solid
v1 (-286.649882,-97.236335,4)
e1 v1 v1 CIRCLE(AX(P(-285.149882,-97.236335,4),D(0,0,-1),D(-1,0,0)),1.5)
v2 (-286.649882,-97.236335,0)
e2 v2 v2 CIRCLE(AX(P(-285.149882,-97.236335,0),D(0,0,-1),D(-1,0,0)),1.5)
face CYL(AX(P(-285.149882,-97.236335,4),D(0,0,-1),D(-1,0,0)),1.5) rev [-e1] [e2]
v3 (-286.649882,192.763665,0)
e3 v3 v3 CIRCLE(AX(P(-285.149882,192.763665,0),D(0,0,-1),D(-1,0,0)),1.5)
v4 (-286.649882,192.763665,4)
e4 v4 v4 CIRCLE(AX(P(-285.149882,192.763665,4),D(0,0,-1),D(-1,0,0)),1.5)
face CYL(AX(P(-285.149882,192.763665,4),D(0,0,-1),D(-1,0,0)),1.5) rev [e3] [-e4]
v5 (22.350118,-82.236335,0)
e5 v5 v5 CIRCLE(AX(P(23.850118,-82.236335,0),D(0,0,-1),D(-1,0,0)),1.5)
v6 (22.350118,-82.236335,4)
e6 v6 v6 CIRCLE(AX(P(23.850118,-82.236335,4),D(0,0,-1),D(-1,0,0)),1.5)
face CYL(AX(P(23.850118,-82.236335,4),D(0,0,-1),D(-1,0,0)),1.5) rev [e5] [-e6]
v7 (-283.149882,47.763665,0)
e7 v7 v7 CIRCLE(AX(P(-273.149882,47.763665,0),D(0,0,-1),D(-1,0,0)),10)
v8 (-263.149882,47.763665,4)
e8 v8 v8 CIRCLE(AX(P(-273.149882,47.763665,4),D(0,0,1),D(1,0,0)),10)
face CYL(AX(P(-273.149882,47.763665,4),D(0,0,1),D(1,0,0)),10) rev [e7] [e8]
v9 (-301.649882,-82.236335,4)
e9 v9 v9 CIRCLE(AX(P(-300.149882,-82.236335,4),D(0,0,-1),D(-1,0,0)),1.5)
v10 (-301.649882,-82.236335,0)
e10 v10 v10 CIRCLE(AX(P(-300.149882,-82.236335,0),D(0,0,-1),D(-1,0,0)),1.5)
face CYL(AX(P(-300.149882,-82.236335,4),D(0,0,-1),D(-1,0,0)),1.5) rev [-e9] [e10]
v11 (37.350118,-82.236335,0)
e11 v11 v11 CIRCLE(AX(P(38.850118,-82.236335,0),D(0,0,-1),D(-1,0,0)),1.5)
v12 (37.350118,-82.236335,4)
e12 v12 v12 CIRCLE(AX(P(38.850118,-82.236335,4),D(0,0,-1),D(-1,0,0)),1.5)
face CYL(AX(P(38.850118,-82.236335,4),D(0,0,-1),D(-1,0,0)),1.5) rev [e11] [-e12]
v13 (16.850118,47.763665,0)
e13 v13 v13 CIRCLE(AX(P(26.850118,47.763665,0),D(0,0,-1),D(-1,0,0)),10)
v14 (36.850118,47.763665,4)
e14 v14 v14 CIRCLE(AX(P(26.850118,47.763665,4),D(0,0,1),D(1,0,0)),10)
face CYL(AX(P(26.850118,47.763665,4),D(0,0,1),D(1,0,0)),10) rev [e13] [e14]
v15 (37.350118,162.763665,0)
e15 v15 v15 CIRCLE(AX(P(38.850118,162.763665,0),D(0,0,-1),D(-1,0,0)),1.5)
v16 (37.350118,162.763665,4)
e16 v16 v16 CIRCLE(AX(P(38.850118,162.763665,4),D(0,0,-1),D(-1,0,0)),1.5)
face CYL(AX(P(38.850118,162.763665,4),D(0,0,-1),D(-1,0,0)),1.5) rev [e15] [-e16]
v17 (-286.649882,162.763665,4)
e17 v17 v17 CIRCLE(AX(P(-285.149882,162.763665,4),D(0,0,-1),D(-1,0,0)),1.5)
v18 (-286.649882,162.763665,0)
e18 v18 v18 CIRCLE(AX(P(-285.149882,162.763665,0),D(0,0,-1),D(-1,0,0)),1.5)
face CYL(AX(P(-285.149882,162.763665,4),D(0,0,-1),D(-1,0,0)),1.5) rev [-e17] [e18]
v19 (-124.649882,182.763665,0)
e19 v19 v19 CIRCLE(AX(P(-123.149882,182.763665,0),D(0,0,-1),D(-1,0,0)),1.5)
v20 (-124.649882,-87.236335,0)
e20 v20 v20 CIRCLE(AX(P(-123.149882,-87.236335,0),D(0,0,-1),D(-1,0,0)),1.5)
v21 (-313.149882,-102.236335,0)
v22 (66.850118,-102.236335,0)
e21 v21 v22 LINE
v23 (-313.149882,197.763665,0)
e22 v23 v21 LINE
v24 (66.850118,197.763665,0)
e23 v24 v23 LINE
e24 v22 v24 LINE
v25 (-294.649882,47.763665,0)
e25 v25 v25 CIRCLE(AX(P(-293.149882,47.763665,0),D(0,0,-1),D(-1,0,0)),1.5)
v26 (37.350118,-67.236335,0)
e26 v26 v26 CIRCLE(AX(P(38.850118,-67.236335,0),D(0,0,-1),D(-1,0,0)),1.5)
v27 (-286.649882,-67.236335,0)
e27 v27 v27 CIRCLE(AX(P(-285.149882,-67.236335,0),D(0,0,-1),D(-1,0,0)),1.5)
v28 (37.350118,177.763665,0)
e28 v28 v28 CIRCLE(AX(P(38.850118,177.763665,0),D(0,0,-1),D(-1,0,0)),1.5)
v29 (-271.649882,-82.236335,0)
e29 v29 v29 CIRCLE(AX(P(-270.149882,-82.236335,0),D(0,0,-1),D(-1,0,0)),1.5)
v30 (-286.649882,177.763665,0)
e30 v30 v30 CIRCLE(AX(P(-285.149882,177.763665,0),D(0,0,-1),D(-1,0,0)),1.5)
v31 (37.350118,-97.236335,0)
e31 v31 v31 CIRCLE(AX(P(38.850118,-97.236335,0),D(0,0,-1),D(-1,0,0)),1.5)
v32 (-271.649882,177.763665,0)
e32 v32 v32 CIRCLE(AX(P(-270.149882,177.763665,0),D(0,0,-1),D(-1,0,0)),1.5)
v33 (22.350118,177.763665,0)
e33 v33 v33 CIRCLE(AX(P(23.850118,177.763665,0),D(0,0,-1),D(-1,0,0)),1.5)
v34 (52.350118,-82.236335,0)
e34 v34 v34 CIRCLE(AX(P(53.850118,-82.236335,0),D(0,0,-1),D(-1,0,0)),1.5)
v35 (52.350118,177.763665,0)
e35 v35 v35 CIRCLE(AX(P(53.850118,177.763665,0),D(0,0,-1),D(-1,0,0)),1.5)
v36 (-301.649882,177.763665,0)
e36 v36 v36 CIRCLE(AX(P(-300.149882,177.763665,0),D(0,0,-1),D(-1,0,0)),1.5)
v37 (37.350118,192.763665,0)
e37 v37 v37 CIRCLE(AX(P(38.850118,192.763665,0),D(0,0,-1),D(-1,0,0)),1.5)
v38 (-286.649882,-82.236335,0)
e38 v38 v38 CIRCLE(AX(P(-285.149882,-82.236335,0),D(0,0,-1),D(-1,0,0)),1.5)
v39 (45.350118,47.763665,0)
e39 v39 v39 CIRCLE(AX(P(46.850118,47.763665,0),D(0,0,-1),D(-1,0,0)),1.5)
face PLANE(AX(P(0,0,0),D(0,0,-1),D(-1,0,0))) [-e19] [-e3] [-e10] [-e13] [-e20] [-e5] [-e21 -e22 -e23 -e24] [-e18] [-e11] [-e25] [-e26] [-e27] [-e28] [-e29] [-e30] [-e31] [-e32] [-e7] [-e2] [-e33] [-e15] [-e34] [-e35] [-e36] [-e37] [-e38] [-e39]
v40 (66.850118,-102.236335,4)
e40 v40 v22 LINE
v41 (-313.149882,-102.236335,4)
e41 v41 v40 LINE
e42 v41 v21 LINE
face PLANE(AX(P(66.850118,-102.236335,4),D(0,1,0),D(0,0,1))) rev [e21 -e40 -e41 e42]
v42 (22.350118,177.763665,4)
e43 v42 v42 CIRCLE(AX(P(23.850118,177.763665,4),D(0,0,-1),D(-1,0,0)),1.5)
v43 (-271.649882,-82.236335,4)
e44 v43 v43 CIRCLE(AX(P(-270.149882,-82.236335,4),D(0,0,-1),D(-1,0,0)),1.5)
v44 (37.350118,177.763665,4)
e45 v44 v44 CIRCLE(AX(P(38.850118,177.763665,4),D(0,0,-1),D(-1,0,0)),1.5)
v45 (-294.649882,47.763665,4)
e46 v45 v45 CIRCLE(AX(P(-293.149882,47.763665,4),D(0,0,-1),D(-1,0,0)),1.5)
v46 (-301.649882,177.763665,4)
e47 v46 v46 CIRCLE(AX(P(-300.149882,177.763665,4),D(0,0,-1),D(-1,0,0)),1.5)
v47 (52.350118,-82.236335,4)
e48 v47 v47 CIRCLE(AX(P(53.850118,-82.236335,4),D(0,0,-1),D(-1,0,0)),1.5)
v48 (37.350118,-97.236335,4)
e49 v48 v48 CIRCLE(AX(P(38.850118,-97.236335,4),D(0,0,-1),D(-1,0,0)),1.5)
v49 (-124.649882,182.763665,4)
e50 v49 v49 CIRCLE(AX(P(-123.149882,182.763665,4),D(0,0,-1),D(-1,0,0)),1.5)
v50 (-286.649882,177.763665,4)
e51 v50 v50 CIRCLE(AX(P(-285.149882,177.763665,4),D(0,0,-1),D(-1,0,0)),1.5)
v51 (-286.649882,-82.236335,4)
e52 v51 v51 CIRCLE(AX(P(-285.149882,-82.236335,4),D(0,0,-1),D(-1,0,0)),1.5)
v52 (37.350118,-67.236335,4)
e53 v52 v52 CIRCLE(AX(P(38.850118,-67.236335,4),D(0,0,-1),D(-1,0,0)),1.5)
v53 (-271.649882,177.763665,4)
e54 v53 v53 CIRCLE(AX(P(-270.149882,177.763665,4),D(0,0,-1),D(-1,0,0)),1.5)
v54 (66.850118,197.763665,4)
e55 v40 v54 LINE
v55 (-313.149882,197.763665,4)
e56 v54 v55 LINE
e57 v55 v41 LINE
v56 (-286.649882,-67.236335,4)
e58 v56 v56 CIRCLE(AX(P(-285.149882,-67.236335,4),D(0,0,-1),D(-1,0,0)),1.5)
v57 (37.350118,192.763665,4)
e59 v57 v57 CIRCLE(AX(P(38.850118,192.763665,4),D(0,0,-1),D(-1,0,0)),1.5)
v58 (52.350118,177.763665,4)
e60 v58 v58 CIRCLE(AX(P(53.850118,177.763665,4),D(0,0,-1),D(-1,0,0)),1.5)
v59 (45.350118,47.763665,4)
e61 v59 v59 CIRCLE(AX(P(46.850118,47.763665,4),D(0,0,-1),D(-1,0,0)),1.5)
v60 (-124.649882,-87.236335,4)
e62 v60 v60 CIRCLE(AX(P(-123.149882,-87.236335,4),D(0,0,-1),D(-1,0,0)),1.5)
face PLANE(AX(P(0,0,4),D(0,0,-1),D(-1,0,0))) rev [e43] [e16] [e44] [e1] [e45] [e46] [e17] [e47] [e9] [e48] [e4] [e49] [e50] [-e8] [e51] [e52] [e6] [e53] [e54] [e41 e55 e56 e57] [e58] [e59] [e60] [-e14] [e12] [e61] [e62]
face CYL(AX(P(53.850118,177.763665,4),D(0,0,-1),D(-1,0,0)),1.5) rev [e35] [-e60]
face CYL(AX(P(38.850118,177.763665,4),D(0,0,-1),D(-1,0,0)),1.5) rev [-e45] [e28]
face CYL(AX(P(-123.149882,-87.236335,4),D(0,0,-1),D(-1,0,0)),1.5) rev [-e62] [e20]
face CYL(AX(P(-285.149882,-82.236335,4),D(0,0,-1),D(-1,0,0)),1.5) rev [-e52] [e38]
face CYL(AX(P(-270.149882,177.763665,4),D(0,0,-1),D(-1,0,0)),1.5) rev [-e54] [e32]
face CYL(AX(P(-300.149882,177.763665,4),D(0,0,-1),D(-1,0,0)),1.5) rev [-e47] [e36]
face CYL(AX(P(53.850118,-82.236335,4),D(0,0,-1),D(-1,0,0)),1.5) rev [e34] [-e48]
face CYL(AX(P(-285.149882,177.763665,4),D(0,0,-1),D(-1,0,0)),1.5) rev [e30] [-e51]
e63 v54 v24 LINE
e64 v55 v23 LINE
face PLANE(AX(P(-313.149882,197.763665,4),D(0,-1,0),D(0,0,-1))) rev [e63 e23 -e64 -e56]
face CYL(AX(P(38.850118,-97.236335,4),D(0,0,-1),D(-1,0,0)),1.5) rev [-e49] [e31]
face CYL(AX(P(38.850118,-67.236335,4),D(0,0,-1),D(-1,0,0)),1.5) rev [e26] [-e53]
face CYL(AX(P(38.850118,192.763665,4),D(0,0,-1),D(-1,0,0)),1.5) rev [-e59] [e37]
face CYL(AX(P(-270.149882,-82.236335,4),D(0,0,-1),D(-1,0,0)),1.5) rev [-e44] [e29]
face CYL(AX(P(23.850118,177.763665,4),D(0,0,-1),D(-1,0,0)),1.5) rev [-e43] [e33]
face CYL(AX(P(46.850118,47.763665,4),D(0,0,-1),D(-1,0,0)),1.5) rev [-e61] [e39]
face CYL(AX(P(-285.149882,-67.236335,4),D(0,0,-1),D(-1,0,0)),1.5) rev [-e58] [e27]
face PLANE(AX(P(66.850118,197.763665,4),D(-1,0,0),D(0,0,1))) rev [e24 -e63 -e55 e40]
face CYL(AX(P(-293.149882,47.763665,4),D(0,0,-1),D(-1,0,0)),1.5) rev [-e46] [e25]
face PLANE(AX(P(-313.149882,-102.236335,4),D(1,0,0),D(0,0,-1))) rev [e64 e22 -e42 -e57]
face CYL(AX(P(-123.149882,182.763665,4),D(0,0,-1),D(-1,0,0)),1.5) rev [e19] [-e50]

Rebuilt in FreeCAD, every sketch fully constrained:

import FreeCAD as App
import Part
import Sketcher

V = App.Vector
Q = App.Units.Quantity


def add_polygon(sketch, points):
    """Adds a closed chain of lines whose ends are joined by coincident constraints."""
    first, n = sketch.GeometryCount, len(points)
    for a, b in zip(points, points[1:] + points[:1]):
        sketch.addGeometry(Part.LineSegment(App.Vector(*a, 0), App.Vector(*b, 0)), False)
    for i in range(n):
        sketch.addConstraint(Sketcher.Constraint("Coincident", first + i, 2, first + (i + 1) % n, 1))

doc = App.newDocument("Part")
body = doc.addObject("PartDesign::Body", "Body")

# Sketch on XY plane
sketch1 = doc.addObject("Sketcher::SketchObject", "Sketch")
body.addObject(sketch1)
sketch1.AttachmentSupport = (doc.XY_Plane, [""])
sketch1.MapMode = "FlatFace"
add_polygon(sketch1, [(-313, 198), (-313, -102), (67, -102), (67, 198)])  # lines 0-3
sketch1.addConstraint([
    Sketcher.Constraint("Vertical", 0),
    Sketcher.Constraint("Horizontal", 1),
    Sketcher.Constraint("Vertical", 2),
    Sketcher.Constraint("Horizontal", 3),
    Sketcher.Constraint("DistanceX", 1, 1, 1, 2, Q("380 mm")),
    Sketcher.Constraint("DistanceY", 0, 2, 0, 1, Q("300 mm")),
    Sketcher.Constraint("DistanceX", 0, 2, -1, 1, Q("313.149882 mm")),
    Sketcher.Constraint("DistanceY", 0, 2, -1, 1, Q("102.236335 mm")),
])
pad1 = doc.addObject("PartDesign::Pad", "Pad")
body.addObject(pad1)
pad1.Profile = sketch1
pad1.Length = 4

# Sketch on XY plane
sketch2 = doc.addObject("Sketcher::SketchObject", "Sketch001")
body.addObject(sketch2)
sketch2.AttachmentSupport = (doc.XY_Plane, [""])
sketch2.MapMode = "FlatFace"
sketch2.AttachmentOffset = App.Placement(V(0, 0, 4), App.Rotation())
sketch2.addGeometry([
    Part.Circle(V(-273, 48, 0), V(0, 0, 1), 10),
    Part.Circle(V(27, 48, 0), V(0, 0, 1), 10),
], False)
sketch2.addConstraint([
    Sketcher.Constraint("Equal", 0, 1),
    Sketcher.Constraint("Horizontal", 0, 3, 1, 3),
    Sketcher.Constraint("Diameter", 0, Q("20 mm")),
    Sketcher.Constraint("DistanceX", 0, 3, 1, 3, Q("300 mm")),
    Sketcher.Constraint("DistanceX", 0, 3, -1, 1, Q("273.149882 mm")),
    Sketcher.Constraint("DistanceY", -1, 1, 0, 3, Q("47.763665 mm")),
])
doc.recompute()
hole = doc.addObject("PartDesign::Hole", "Hole")
body.addObject(hole)
hole.Profile = sketch2
hole.ThreadType = "None"
hole.Diameter = 20
hole.DepthType = "Dimension"
hole.Depth = 100
hole.DrillPoint = "Flat"

# Sketch on XY plane
sketch3 = doc.addObject("Sketcher::SketchObject", "Sketch002")
body.addObject(sketch3)
sketch3.AttachmentSupport = (doc.XY_Plane, [""])
sketch3.MapMode = "FlatFace"
sketch3.addGeometry([
    Part.Circle(V(-285.1, 177.8, 0), V(0, 0, 1), 1.5),  # 0
    Part.Circle(V(-270.1, 177.8, 0), V(0, 0, 1), 1.5),  # 1
    Part.Circle(V(-285.1, 192.8, 0), V(0, 0, 1), 1.5),  # 2
    Part.Circle(V(-300.1, 177.8, 0), V(0, 0, 1), 1.5),  # 3
    Part.Circle(V(-285.1, 162.8, 0), V(0, 0, 1), 1.5),  # 4
    Part.Circle(V(38.9, 162.8, 0), V(0, 0, 1), 1.5),  # 5
    Part.Circle(V(53.9, 177.8, 0), V(0, 0, 1), 1.5),  # 6
    Part.Circle(V(38.9, 177.8, 0), V(0, 0, 1), 1.5),  # 7
    Part.Circle(V(38.9, 192.8, 0), V(0, 0, 1), 1.5),  # 8
    Part.Circle(V(23.9, 177.8, 0), V(0, 0, 1), 1.5),  # 9
    Part.Circle(V(38.9, -97.2, 0), V(0, 0, 1), 1.5),  # 10
    Part.Circle(V(53.9, -82.2, 0), V(0, 0, 1), 1.5),  # 11
    Part.Circle(V(38.9, -82.2, 0), V(0, 0, 1), 1.5),  # 12
    Part.Circle(V(38.9, -67.2, 0), V(0, 0, 1), 1.5),  # 13
    Part.Circle(V(23.9, -82.2, 0), V(0, 0, 1), 1.5),  # 14
    Part.Circle(V(-285.1, -97.2, 0), V(0, 0, 1), 1.5),  # 15
    Part.Circle(V(-270.1, -82.2, 0), V(0, 0, 1), 1.5),  # 16
    Part.Circle(V(-285.1, -82.2, 0), V(0, 0, 1), 1.5),  # 17
    Part.Circle(V(-285.1, -67.2, 0), V(0, 0, 1), 1.5),  # 18
    Part.Circle(V(-300.1, -82.2, 0), V(0, 0, 1), 1.5),  # 19
], False)
sketch3.addConstraint([
    Sketcher.Constraint("Equal", 0, 1),
    Sketcher.Constraint("Equal", 1, 2),
    Sketcher.Constraint("Equal", 2, 3),
    Sketcher.Constraint("Equal", 3, 4),
    Sketcher.Constraint("Equal", 4, 5),
    Sketcher.Constraint("Equal", 5, 6),
    Sketcher.Constraint("Equal", 6, 7),
    Sketcher.Constraint("Equal", 7, 8),
    Sketcher.Constraint("Equal", 8, 9),
    Sketcher.Constraint("Equal", 9, 10),
    Sketcher.Constraint("Equal", 10, 11),
    Sketcher.Constraint("Equal", 11, 12),
    Sketcher.Constraint("Equal", 12, 13),
    Sketcher.Constraint("Equal", 13, 14),
    Sketcher.Constraint("Equal", 14, 15),
    Sketcher.Constraint("Equal", 15, 16),
    Sketcher.Constraint("Equal", 16, 17),
    Sketcher.Constraint("Equal", 17, 18),
    Sketcher.Constraint("Equal", 18, 19),
    Sketcher.Constraint("Horizontal", 0, 3, 1, 3),
    Sketcher.Constraint("Horizontal", 1, 3, 3, 3),
    Sketcher.Constraint("Horizontal", 4, 3, 5, 3),
    Sketcher.Constraint("Horizontal", 3, 3, 6, 3),
    Sketcher.Constraint("Horizontal", 6, 3, 7, 3),
    Sketcher.Constraint("Horizontal", 2, 3, 8, 3),
    Sketcher.Constraint("Horizontal", 7, 3, 9, 3),
    Sketcher.Constraint("Horizontal", 11, 3, 12, 3),
    Sketcher.Constraint("Horizontal", 12, 3, 14, 3),
    Sketcher.Constraint("Horizontal", 10, 3, 15, 3),
    Sketcher.Constraint("Horizontal", 14, 3, 16, 3),
    Sketcher.Constraint("Horizontal", 16, 3, 17, 3),
    Sketcher.Constraint("Horizontal", 13, 3, 18, 3),
    Sketcher.Constraint("Horizontal", 17, 3, 19, 3),
    Sketcher.Constraint("Vertical", 0, 3, 2, 3),
    Sketcher.Constraint("Vertical", 2, 3, 4, 3),
    Sketcher.Constraint("Vertical", 5, 3, 7, 3),
    Sketcher.Constraint("Vertical", 7, 3, 8, 3),
    Sketcher.Constraint("Vertical", 8, 3, 10, 3),
    Sketcher.Constraint("Vertical", 6, 3, 11, 3),
    Sketcher.Constraint("Vertical", 10, 3, 12, 3),
    Sketcher.Constraint("Vertical", 12, 3, 13, 3),
    Sketcher.Constraint("Vertical", 9, 3, 14, 3),
    Sketcher.Constraint("Vertical", 4, 3, 15, 3),
    Sketcher.Constraint("Vertical", 1, 3, 16, 3),
    Sketcher.Constraint("Vertical", 15, 3, 17, 3),
    Sketcher.Constraint("Vertical", 17, 3, 18, 3),
    Sketcher.Constraint("Vertical", 3, 3, 19, 3),
    Sketcher.Constraint("Diameter", 0, Q("3 mm")),
    Sketcher.Constraint("DistanceX", 0, 3, 1, 3, Q("15 mm")),
    Sketcher.Constraint("DistanceY", 0, 3, 2, 3, Q("15 mm")),
    Sketcher.Constraint("DistanceX", 3, 3, 0, 3, Q("15 mm")),
    Sketcher.Constraint("DistanceY", 4, 3, 0, 3, Q("15 mm")),
    Sketcher.Constraint("DistanceX", 1, 3, 5, 3, Q("309 mm")),
    Sketcher.Constraint("DistanceX", 5, 3, 6, 3, Q("15 mm")),
    Sketcher.Constraint("DistanceX", 9, 3, 7, 3, Q("15 mm")),
    Sketcher.Constraint("DistanceY", 10, 3, 5, 3, Q("260 mm")),
    Sketcher.Constraint("DistanceY", 10, 3, 11, 3, Q("15 mm")),
    Sketcher.Constraint("DistanceY", 12, 3, 13, 3, Q("15 mm")),
    Sketcher.Constraint("DistanceX", 0, 3, -1, 1, Q("285.149882 mm")),
    Sketcher.Constraint("DistanceY", -1, 1, 0, 3, Q("177.763665 mm")),
])
pocket1 = doc.addObject("PartDesign::Pocket", "Pocket")
body.addObject(pocket1)
pocket1.Profile = sketch3
pocket1.Length = 4
pocket1.Reversed = True

# Sketch on XY plane
sketch4 = doc.addObject("Sketcher::SketchObject", "Sketch003")
body.addObject(sketch4)
sketch4.AttachmentSupport = (doc.XY_Plane, [""])
sketch4.MapMode = "FlatFace"
sketch4.addGeometry([
    Part.Circle(V(-293.1, 47.8, 0), V(0, 0, 1), 1.5),
    Part.Circle(V(-123.1, 182.8, 0), V(0, 0, 1), 1.5),
    Part.Circle(V(46.9, 47.8, 0), V(0, 0, 1), 1.5),
    Part.Circle(V(-123.1, -87.2, 0), V(0, 0, 1), 1.5),
], False)
sketch4.addConstraint([
    Sketcher.Constraint("Equal", 0, 1),
    Sketcher.Constraint("Equal", 1, 2),
    Sketcher.Constraint("Equal", 2, 3),
    Sketcher.Constraint("Horizontal", 0, 3, 2, 3),
    Sketcher.Constraint("Vertical", 1, 3, 3, 3),
    Sketcher.Constraint("Diameter", 0, Q("3 mm")),
    Sketcher.Constraint("DistanceX", 0, 3, 1, 3, Q("170 mm")),
    Sketcher.Constraint("DistanceY", 0, 3, 1, 3, Q("135 mm")),
    Sketcher.Constraint("DistanceX", 1, 3, 2, 3, Q("170 mm")),
    Sketcher.Constraint("DistanceY", 3, 3, 2, 3, Q("135 mm")),
    Sketcher.Constraint("DistanceX", 0, 3, -1, 1, Q("293.149882 mm")),
    Sketcher.Constraint("DistanceY", -1, 1, 0, 3, Q("47.763665 mm")),
])
pocket2 = doc.addObject("PartDesign::Pocket", "Pocket001")
body.addObject(pocket2)
pocket2.Profile = sketch4
pocket2.Length = 4
pocket2.Reversed = True

doc.recompute()
